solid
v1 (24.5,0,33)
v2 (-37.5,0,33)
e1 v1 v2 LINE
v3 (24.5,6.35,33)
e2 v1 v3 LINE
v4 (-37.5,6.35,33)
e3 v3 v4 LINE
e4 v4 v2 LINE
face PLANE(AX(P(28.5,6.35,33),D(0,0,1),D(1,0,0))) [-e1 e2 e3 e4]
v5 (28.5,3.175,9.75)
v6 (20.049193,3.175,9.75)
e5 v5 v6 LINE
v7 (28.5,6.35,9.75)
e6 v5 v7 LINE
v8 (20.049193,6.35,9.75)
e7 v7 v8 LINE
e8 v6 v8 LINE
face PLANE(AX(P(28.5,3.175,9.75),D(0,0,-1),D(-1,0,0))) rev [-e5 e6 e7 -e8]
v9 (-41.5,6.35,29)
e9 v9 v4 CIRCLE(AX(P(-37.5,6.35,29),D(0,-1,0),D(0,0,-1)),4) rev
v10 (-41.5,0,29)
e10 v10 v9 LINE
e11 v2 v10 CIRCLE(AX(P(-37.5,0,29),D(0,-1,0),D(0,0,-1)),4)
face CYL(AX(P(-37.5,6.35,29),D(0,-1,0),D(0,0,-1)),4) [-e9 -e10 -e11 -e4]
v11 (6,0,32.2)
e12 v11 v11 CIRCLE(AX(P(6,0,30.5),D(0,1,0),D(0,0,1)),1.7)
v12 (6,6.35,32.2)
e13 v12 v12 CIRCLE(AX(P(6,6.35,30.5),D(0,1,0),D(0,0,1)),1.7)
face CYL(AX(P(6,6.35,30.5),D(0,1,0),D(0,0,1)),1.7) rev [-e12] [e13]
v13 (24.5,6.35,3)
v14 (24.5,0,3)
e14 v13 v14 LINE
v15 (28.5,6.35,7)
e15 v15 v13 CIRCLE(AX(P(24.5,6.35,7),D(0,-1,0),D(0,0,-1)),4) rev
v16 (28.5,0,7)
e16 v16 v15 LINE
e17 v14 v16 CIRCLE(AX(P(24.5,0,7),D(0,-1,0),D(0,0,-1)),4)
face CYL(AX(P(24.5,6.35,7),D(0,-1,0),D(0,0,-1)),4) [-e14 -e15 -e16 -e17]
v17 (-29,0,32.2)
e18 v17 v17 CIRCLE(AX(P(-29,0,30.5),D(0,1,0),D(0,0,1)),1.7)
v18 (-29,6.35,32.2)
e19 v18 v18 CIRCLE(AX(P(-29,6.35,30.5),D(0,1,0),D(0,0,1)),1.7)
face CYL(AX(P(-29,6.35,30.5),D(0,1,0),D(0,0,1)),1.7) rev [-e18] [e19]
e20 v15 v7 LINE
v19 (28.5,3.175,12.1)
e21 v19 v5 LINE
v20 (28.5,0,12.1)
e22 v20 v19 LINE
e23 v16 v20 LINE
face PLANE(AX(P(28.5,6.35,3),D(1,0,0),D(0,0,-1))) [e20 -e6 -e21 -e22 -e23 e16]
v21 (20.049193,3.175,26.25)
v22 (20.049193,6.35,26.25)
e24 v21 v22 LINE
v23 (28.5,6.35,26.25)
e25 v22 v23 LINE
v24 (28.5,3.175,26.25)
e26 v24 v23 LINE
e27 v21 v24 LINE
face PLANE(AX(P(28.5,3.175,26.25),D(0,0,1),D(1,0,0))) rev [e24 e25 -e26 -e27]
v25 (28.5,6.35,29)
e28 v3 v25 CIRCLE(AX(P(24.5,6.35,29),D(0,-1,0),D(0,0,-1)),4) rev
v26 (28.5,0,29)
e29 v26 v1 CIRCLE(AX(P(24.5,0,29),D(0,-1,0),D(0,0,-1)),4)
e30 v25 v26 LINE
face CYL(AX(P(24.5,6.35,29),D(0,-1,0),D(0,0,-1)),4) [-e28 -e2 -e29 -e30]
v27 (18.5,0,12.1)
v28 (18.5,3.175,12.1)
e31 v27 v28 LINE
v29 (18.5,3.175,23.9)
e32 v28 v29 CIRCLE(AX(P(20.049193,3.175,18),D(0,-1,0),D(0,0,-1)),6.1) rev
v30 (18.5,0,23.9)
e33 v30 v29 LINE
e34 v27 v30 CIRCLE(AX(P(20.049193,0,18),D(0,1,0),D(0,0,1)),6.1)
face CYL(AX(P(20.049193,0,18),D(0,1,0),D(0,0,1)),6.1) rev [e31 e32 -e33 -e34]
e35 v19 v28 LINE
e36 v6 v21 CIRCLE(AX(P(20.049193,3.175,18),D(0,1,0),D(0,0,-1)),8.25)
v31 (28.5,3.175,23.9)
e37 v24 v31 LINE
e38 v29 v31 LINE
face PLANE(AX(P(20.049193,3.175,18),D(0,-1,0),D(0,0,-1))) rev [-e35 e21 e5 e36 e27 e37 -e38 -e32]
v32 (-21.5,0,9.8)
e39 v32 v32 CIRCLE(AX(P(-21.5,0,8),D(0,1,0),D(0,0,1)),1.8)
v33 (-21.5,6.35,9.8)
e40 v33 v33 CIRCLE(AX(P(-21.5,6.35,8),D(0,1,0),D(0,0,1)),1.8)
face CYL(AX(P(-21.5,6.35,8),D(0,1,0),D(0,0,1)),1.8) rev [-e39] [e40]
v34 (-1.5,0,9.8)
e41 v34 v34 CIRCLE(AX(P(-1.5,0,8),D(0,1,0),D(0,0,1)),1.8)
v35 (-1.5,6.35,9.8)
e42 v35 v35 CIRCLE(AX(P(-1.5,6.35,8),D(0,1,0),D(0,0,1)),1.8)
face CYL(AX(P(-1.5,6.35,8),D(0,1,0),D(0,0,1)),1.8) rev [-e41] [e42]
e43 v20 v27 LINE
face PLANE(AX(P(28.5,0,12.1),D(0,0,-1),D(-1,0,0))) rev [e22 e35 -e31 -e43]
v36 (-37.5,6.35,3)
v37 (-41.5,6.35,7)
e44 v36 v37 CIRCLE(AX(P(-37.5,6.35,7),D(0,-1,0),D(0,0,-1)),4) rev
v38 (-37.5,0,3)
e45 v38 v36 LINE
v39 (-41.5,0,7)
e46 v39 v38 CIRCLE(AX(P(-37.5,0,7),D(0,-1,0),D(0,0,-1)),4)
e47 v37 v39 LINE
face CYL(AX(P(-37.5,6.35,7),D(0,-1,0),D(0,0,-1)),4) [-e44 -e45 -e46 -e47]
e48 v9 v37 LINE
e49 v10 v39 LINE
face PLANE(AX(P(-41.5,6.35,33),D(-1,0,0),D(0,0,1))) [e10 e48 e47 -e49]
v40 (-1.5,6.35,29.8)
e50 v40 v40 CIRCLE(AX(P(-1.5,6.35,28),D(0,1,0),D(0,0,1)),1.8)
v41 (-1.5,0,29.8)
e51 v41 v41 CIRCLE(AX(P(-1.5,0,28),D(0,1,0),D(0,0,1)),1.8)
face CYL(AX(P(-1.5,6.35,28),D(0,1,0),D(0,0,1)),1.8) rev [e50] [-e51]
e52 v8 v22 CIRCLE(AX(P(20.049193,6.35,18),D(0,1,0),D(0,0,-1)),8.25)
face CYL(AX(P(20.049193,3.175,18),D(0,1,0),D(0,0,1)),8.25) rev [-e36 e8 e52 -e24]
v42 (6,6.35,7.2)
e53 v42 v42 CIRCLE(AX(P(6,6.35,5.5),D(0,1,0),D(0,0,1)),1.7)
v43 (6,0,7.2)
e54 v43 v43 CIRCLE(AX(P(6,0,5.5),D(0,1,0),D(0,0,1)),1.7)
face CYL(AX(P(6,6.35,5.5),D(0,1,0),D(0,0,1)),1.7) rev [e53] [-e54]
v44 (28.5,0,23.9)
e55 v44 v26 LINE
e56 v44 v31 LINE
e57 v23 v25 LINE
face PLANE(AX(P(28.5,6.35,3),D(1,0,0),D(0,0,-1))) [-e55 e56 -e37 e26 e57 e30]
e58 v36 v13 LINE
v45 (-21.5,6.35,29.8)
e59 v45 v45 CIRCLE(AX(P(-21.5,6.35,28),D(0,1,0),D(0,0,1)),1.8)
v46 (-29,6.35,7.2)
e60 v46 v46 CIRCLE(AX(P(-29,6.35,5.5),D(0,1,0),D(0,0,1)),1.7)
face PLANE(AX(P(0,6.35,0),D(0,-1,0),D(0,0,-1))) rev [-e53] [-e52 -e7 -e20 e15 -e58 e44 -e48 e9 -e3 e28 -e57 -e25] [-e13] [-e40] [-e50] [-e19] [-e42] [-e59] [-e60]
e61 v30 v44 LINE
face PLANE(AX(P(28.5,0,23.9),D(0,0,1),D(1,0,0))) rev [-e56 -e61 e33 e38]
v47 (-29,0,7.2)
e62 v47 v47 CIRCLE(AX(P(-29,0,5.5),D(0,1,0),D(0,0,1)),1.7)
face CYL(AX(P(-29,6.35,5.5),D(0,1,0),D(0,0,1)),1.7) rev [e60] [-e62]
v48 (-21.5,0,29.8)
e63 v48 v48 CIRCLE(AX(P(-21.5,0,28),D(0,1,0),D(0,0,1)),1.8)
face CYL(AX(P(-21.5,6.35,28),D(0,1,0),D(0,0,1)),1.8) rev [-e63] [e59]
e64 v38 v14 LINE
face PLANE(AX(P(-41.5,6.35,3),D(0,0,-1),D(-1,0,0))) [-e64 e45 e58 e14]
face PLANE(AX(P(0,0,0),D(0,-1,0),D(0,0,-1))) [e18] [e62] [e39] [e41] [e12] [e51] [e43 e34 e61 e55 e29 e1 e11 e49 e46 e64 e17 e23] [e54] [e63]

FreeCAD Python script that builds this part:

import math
import FreeCAD as App
import Part
import Sketcher
Q = App.Units.Quantity


def edges_at(feature, points):
    """Names of the edges that pass closest to the given points."""
    edges = feature.Shape.Edges
    near = lambda p: min(range(len(edges)), key=lambda i: edges[i].distToShape(Part.Vertex(*p))[0])
    return sorted({f"Edge{near(p) + 1}" for p in points})


def add_polygon(sketch, points):
    """Adds a closed chain of lines whose ends are joined by coincident constraints."""
    first, n = sketch.GeometryCount, len(points)
    for a, b in zip(points, points[1:] + points[:1]):
        sketch.addGeometry(Part.LineSegment(App.Vector(*a, 0), App.Vector(*b, 0)), False)
    for i in range(n):
        sketch.addConstraint(Sketcher.Constraint("Coincident", first + i, 2, first + (i + 1) % n, 1))

doc = App.newDocument("Part")
body = doc.addObject("PartDesign::Body", "Body")

# Sketch on XZ plane
sketch1 = body.newObject("Sketcher::SketchObject", "Sketch")
sketch1.AttachmentSupport = (doc.getObject("XZ_Plane"), [""])
sketch1.MapMode = "FlatFace"
add_polygon(sketch1, [(-42, 33), (-42, 3), (28, 3), (28, 33)])  # lines 0-3
sketch1.addConstraint([
    Sketcher.Constraint("Vertical", 0),
    Sketcher.Constraint("Horizontal", 1),
    Sketcher.Constraint("Vertical", 2),
    Sketcher.Constraint("Horizontal", 3),
    Sketcher.Constraint("DistanceX", 1, 1, 1, 2, Q("70 mm")),
    Sketcher.Constraint("DistanceY", 0, 2, 0, 1, Q("30 mm")),
    Sketcher.Constraint("DistanceY", -1, 1, 0, 2, Q("3 mm")),
    Sketcher.Constraint("DistanceX", 0, 2, -1, 1, Q("41.5 mm")),
])
pad1 = body.newObject("PartDesign::Pad", "Pad")
pad1.Profile = sketch1
pad1.Length = 6.35
pad1.Reversed = True

# Sketch on XZ plane
sketch2 = body.newObject("Sketcher::SketchObject", "Sketch001")
sketch2.AttachmentSupport = (doc.getObject("XZ_Plane"), [""])
sketch2.MapMode = "FlatFace"
sketch2.AttachmentOffset = App.Placement(App.Vector(0, 0, -6.35), App.Rotation())
sketch2.addGeometry([
    Part.LineSegment(App.Vector(28, 12, 0), App.Vector(18, 12, 0)),
    Part.ArcOfCircle(Part.Circle(App.Vector(20, 18, 0), App.Vector(0, 0, 1), 6), math.radians(105), math.radians(255)),
    Part.LineSegment(App.Vector(18, 24, 0), App.Vector(28, 24, 0)),
    Part.LineSegment(App.Vector(28, 24, 0), App.Vector(28, 12, 0)),
], False)
sketch2.addConstraint([
    Sketcher.Constraint("Coincident", 0, 2, 1, 2),
    Sketcher.Constraint("Coincident", 1, 1, 2, 1),
    Sketcher.Constraint("Coincident", 2, 2, 3, 1),
    Sketcher.Constraint("Coincident", 3, 2, 0, 1),
    Sketcher.Constraint("Horizontal", 0),
    Sketcher.Constraint("Horizontal", 2),
    Sketcher.Constraint("Vertical", 3),
    Sketcher.Constraint("Vertical", 0, 2, 1, 1),
    Sketcher.Constraint("Radius", 1, Q("6.1 mm")),
    Sketcher.Constraint("DistanceX", 0, 2, 0, 1, Q("10 mm")),
    Sketcher.Constraint("DistanceY", 3, 2, 3, 1, Q("11.8 mm")),
    Sketcher.Constraint("DistanceY", -1, 1, 1, 3, Q("18 mm")),
    Sketcher.Constraint("DistanceX", -1, 1, 0, 2, Q("18.5 mm")),
])
pocket1 = body.newObject("PartDesign::Pocket", "Pocket")
pocket1.Profile = sketch2
pocket1.Type = "ThroughAll"
pocket1.Reversed = True

# Sketch on XZ plane
sketch3 = body.newObject("Sketcher::SketchObject", "Sketch002")
sketch3.AttachmentSupport = (doc.getObject("XZ_Plane"), [""])
sketch3.MapMode = "FlatFace"
sketch3.AttachmentOffset = App.Placement(App.Vector(0, 0, -6.35), App.Rotation())
sketch3.addGeometry([
    Part.LineSegment(App.Vector(20, 26, 0), App.Vector(28, 26, 0)),
    Part.LineSegment(App.Vector(28, 26, 0), App.Vector(28, 10, 0)),
    Part.LineSegment(App.Vector(28, 10, 0), App.Vector(20, 10, 0)),
    Part.ArcOfCircle(Part.Circle(App.Vector(20, 18, 0), App.Vector(0, 0, 1), 8), math.radians(90), math.radians(270)),
], False)
sketch3.addConstraint([
    Sketcher.Constraint("Coincident", 0, 2, 1, 1),
    Sketcher.Constraint("Coincident", 1, 2, 2, 1),
    Sketcher.Constraint("Tangent", 2, 2, 3, 2),
    Sketcher.Constraint("Tangent", 3, 1, 0, 1),
    Sketcher.Constraint("Horizontal", 0),
    Sketcher.Constraint("Vertical", 1),
    Sketcher.Constraint("Horizontal", 2),
    Sketcher.Constraint("Radius", 3, Q("8.25 mm")),
    Sketcher.Constraint("DistanceY", -1, 1, 3, 3, Q("18 mm")),
    Sketcher.Constraint("DistanceX", -1, 1, 0, 2, Q("28.5 mm")),
    Sketcher.Constraint("DistanceX", 0, 1, 0, 2, Q("8.450807 mm")),
])
pocket2 = body.newObject("PartDesign::Pocket", "Pocket001")
pocket2.Profile = sketch3
pocket2.Length = 3.175
pocket2.Reversed = True

# Sketch on XZ plane
sketch4 = body.newObject("Sketcher::SketchObject", "Sketch003")
sketch4.AttachmentSupport = (doc.getObject("XZ_Plane"), [""])
sketch4.MapMode = "FlatFace"
sketch4.AttachmentOffset = App.Placement(App.Vector(0, 0, -6.35), App.Rotation())
sketch4.addGeometry([
    Part.Circle(App.Vector(-21.5, 28, 0), App.Vector(0, 0, 1), 1.8),
    Part.Circle(App.Vector(-21.5, 8, 0), App.Vector(0, 0, 1), 1.8),
    Part.Circle(App.Vector(-1.5, 8, 0), App.Vector(0, 0, 1), 1.8),
    Part.Circle(App.Vector(-1.5, 28, 0), App.Vector(0, 0, 1), 1.8),
], False)
sketch4.addConstraint([
    Sketcher.Constraint("Equal", 0, 1),
    Sketcher.Constraint("Equal", 1, 2),
    Sketcher.Constraint("Equal", 2, 3),
    Sketcher.Constraint("Horizontal", 1, 3, 2, 3),
    Sketcher.Constraint("Horizontal", 0, 3, 3, 3),
    Sketcher.Constraint("Vertical", 0, 3, 1, 3),
    Sketcher.Constraint("Vertical", 2, 3, 3, 3),
    Sketcher.Constraint("Diameter", 0, Q("3.6 mm")),
    Sketcher.Constraint("DistanceY", -1, 1, 0, 3, Q("28 mm")),
    Sketcher.Constraint("DistanceY", -1, 1, 1, 3, Q("8 mm")),
    Sketcher.Constraint("DistanceX", 1, 3, 2, 3, Q("20 mm")),
    Sketcher.Constraint("DistanceX", 0, 3, -1, 1, Q("21.5 mm")),
])
doc.recompute()
hole = body.newObject("PartDesign::Hole", "Hole")
hole.Profile = sketch4
hole.ThreadType = "None"
hole.Diameter = 3.6
hole.DepthType = "ThroughAll"
hole.Reversed = True
doc.recompute()

fillet = body.newObject("PartDesign::Fillet", "Fillet")
fillet.Base = (hole, edges_at(hole, [
    (-41.5, 3.175, 33),
    (28.5, 3.175, 33),
    (28.5, 3.175, 3),
    (-41.5, 3.175, 3),
]))
fillet.Radius = 4

# Sketch on XZ plane
sketch5 = body.newObject("Sketcher::SketchObject", "Sketch004")
sketch5.AttachmentSupport = (doc.getObject("XZ_Plane"), [""])
sketch5.MapMode = "FlatFace"
sketch5.AttachmentOffset = App.Placement(App.Vector(0, 0, -6.35), App.Rotation())
sketch5.addGeometry([
    Part.Circle(App.Vector(-29, 5.5, 0), App.Vector(0, 0, 1), 1.7),
    Part.Circle(App.Vector(-29, 30.5, 0), App.Vector(0, 0, 1), 1.7),
    Part.Circle(App.Vector(6, 30.5, 0), App.Vector(0, 0, 1), 1.7),
    Part.Circle(App.Vector(6, 5.5, 0), App.Vector(0, 0, 1), 1.7),
], False)
sketch5.addConstraint([
    Sketcher.Constraint("Equal", 0, 1),
    Sketcher.Constraint("Equal", 1, 2),
    Sketcher.Constraint("Equal", 2, 3),
    Sketcher.Constraint("Horizontal", 1, 3, 2, 3),
    Sketcher.Constraint("Horizontal", 0, 3, 3, 3),
    Sketcher.Constraint("Vertical", 0, 3, 1, 3),
    Sketcher.Constraint("Vertical", 2, 3, 3, 3),
    Sketcher.Constraint("Diameter", 0, Q("3.4 mm")),
    Sketcher.Constraint("DistanceX", 0, 3, -1, 1, Q("29 mm")),
    Sketcher.Constraint("DistanceX", -1, 1, 2, 3, Q("6 mm")),
    Sketcher.Constraint("DistanceY", 0, 3, 1, 3, Q("25 mm")),
    Sketcher.Constraint("DistanceY", -1, 1, 0, 3, Q("5.5 mm")),
])
doc.recompute()
hole2 = body.newObject("PartDesign::Hole", "Hole001")
hole2.Profile = sketch5
hole2.ThreadType = "None"
hole2.Diameter = 3.4
hole2.DepthType = "ThroughAll"
hole2.Reversed = True

doc.recompute()
